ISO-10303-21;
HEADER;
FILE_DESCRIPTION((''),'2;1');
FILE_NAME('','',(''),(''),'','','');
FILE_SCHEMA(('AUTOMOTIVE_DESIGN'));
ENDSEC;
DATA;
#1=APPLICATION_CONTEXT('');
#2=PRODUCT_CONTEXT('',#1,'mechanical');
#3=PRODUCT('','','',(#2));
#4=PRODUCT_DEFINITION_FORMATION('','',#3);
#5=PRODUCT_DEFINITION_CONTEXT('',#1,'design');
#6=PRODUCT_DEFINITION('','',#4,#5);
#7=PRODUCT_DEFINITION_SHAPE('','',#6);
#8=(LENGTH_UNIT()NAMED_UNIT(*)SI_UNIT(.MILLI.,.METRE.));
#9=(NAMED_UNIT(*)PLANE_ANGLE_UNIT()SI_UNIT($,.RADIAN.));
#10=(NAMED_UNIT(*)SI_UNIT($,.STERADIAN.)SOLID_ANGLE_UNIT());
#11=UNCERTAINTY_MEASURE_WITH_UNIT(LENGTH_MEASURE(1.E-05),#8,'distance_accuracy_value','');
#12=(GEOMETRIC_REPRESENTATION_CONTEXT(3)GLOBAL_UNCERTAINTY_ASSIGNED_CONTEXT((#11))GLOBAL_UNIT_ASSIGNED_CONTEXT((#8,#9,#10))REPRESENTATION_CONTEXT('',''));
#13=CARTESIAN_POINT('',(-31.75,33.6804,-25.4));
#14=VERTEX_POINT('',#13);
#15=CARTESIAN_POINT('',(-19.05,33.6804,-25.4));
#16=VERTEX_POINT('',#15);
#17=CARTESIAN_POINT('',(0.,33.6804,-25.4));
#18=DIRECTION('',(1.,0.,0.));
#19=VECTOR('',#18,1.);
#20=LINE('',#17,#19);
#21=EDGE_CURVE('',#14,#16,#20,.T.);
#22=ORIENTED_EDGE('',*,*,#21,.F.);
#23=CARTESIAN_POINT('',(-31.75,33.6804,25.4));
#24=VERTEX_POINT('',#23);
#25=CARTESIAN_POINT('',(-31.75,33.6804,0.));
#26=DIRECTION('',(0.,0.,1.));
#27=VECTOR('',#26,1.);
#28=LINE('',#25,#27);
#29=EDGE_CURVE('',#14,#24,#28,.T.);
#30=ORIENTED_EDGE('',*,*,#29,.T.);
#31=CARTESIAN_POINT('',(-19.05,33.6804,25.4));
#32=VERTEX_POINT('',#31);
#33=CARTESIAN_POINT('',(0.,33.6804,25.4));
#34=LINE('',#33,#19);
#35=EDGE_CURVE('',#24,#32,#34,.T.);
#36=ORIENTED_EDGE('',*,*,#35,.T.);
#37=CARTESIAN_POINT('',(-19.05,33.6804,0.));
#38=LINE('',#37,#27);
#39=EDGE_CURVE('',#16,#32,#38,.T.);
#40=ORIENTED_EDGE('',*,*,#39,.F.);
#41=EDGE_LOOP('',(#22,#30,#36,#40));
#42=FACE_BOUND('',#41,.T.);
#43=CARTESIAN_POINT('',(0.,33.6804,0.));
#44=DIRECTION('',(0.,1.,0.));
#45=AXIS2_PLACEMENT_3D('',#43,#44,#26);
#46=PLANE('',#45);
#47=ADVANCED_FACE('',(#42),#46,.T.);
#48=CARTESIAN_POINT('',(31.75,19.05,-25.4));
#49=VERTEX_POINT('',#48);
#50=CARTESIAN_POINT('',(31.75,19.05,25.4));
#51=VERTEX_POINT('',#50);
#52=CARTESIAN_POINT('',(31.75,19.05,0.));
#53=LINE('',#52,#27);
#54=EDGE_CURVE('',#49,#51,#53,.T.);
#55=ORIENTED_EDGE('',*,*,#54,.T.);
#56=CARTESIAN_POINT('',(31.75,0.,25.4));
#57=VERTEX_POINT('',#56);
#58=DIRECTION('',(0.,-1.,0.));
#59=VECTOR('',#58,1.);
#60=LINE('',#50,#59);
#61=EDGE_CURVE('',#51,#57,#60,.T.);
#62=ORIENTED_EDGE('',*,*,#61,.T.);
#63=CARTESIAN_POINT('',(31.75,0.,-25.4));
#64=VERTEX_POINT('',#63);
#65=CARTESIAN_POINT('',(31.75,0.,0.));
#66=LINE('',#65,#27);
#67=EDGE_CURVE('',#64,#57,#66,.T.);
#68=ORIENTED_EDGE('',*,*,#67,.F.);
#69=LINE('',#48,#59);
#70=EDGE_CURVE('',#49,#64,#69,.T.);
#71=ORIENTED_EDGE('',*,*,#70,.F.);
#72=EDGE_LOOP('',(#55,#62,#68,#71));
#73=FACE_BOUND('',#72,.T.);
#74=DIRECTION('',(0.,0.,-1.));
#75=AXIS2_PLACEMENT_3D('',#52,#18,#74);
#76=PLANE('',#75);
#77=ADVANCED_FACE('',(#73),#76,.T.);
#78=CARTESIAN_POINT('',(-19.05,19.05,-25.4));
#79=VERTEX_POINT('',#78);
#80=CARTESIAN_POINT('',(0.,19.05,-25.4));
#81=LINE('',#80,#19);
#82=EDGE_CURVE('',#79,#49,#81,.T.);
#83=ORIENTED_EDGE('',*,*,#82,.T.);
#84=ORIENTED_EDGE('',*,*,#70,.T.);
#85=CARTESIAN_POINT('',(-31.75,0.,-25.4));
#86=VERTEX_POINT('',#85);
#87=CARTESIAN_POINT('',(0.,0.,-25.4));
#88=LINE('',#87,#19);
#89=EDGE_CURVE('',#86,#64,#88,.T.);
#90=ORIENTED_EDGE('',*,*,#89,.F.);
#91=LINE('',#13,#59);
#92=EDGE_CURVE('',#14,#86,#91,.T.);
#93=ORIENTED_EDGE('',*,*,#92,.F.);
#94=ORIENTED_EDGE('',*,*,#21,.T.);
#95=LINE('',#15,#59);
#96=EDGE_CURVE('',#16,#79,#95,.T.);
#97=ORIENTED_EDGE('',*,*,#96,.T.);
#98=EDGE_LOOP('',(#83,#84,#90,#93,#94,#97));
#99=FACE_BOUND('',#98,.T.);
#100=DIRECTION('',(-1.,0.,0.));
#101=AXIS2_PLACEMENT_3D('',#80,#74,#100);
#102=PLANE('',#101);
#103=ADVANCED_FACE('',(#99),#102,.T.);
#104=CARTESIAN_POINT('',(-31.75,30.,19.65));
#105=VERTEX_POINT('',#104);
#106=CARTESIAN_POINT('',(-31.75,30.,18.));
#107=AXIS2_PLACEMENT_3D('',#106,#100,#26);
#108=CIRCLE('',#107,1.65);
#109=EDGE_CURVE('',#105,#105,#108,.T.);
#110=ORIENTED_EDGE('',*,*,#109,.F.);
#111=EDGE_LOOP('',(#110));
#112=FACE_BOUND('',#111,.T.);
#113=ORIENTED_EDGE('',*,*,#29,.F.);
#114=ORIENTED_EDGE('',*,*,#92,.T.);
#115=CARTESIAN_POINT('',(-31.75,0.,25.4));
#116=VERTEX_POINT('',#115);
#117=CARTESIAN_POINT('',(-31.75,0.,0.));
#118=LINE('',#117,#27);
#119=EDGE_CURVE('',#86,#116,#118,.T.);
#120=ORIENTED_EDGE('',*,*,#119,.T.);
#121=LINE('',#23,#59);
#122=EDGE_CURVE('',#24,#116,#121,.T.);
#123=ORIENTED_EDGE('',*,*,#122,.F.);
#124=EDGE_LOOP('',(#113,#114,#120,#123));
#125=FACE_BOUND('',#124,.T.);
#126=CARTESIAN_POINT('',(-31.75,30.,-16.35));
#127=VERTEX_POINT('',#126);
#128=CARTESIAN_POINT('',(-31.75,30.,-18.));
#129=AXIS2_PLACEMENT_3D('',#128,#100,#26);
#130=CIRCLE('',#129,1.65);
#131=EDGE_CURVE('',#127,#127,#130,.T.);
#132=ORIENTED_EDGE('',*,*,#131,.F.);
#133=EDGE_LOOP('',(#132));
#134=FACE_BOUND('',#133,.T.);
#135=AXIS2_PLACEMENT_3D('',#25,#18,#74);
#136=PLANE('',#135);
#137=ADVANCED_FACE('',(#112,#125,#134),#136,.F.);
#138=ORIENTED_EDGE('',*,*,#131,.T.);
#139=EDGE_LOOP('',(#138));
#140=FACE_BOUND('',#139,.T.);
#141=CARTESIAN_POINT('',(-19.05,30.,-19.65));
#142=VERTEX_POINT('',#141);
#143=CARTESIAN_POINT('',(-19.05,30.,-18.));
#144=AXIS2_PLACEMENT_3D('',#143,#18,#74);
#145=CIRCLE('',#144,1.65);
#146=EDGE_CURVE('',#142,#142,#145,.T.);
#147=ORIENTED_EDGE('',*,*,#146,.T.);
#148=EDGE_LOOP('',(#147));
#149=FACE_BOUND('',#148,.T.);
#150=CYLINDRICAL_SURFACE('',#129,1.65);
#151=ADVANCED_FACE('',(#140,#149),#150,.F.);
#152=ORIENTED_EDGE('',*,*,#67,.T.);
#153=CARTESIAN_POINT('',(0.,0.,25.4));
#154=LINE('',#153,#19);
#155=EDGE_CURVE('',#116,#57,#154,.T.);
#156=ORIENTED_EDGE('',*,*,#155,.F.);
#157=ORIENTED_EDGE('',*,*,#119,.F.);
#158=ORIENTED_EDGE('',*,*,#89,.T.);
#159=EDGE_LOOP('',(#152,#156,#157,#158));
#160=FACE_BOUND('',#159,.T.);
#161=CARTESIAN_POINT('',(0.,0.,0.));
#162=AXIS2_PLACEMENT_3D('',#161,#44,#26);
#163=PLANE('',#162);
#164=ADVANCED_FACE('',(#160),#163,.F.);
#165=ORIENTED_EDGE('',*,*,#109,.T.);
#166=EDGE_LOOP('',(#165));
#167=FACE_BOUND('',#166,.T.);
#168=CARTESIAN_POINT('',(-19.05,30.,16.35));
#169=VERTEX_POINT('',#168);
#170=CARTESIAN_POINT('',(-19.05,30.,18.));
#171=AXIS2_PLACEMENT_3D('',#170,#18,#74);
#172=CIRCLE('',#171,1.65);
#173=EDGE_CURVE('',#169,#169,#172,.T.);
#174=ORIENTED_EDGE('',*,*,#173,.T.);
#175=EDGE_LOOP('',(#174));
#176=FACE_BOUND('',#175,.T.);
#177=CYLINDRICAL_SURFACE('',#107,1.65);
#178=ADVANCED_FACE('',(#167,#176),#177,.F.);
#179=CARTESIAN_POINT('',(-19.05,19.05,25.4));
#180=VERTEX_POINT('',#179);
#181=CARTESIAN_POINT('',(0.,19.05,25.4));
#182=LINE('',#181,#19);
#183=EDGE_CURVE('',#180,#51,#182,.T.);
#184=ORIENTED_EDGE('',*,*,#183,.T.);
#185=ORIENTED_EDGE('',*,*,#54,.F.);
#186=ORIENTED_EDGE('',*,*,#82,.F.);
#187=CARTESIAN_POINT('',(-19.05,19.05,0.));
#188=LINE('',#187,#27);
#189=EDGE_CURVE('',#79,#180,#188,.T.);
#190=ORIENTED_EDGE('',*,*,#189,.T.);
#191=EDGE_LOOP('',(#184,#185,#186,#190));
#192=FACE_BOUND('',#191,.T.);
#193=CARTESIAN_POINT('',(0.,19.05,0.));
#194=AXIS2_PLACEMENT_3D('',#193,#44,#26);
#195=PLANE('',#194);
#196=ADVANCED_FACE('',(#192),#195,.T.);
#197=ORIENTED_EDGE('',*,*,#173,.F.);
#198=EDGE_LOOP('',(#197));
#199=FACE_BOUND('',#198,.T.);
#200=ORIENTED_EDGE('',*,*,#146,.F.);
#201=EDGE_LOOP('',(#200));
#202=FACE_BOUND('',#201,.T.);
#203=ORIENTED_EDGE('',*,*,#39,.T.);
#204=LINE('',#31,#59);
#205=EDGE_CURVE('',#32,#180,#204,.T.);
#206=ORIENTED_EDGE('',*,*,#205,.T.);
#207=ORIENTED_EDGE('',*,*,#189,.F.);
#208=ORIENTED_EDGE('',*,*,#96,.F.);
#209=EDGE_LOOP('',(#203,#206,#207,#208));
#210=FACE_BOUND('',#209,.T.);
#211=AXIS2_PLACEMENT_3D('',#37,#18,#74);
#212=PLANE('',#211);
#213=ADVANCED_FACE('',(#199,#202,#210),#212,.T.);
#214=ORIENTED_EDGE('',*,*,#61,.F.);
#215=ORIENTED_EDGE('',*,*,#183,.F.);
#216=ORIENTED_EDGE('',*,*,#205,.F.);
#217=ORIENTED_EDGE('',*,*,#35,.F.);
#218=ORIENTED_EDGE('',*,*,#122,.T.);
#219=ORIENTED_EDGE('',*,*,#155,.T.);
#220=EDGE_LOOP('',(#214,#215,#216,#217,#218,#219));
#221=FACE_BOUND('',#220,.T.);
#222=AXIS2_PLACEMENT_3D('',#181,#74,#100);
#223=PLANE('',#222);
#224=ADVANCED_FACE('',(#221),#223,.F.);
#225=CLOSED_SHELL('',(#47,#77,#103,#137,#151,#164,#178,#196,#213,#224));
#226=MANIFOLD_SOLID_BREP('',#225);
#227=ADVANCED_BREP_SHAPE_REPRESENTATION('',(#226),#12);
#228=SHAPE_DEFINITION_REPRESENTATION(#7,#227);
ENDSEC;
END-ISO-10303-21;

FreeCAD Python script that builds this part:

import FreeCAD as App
import Part
import Sketcher
Q = App.Units.Quantity


def add_polygon(sketch, points):
    """Adds a closed chain of lines whose ends are joined by coincident constraints."""
    first, n = sketch.GeometryCount, len(points)
    for a, b in zip(points, points[1:] + points[:1]):
        sketch.addGeometry(Part.LineSegment(App.Vector(*a, 0), App.Vector(*b, 0)), False)
    for i in range(n):
        sketch.addConstraint(Sketcher.Constraint("Coincident", first + i, 2, first + (i + 1) % n, 1))

doc = App.newDocument("Part")
body = doc.addObject("PartDesign::Body", "Body")

sketch1 = doc.addObject("Sketcher::SketchObject", "Sketch")
body.addObject(sketch1)
sketch1.AttachmentSupport = (doc.XZ_Plane, [""])
sketch1.MapMode = "FlatFace"
add_polygon(sketch1, [(-19, -25), (-19, 25), (32, 25), (32, -25)])
sketch1.addConstraint([
    Sketcher.Constraint("Vertical", 0),
    Sketcher.Constraint("Horizontal", 1),
    Sketcher.Constraint("Vertical", 2),
    Sketcher.Constraint("Horizontal", 3),
    Sketcher.Constraint("Equal", 3, 0),
    Sketcher.Constraint("DistanceX", 1, 1, 1, 2, Q("2 in")),
    Sketcher.Constraint("DistanceY", -1, 1, 0, 2, Q("1 in")),
    Sketcher.Constraint("DistanceX", 0, 2, -1, 1, Q("0.75 in")),
])
pad1 = doc.addObject("PartDesign::Pad", "Pad")
body.addObject(pad1)
pad1.Profile = sketch1
pad1.Length = Q("0.75 in")
pad1.Reversed = True

sketch2 = doc.addObject("Sketcher::SketchObject", "Sketch001")
body.addObject(sketch2)
sketch2.AttachmentSupport = (doc.XZ_Plane, [""])
sketch2.MapMode = "FlatFace"
add_polygon(sketch2, [(-32, -25), (-32, 25), (-19, 25), (-19, -25)])
sketch2.addConstraint([
    Sketcher.Constraint("Vertical", 0),
    Sketcher.Constraint("Horizontal", 1),
    Sketcher.Constraint("Vertical", 2),
    Sketcher.Constraint("Horizontal", 3),
    Sketcher.Constraint("DistanceY", 0, 1, 0, 2, Q("2 in")),
    Sketcher.Constraint("DistanceX", 1, 1, 1, 2, Q("0.5 in")),
    Sketcher.Constraint("DistanceY", -1, 1, 0, 2, Q("1 in")),
    Sketcher.Constraint("DistanceX", 0, 2, -1, 1, Q("1.25 in")),
])
pad2 = doc.addObject("PartDesign::Pad", "Pad001")
body.addObject(pad2)
pad2.Profile = sketch2
pad2.Length = Q("1.326 in")
pad2.Reversed = True

sketch3 = doc.addObject("Sketcher::SketchObject", "Sketch002")
body.addObject(sketch3)
sketch3.AttachmentSupport = (doc.YZ_Plane, [""])
sketch3.MapMode = "FlatFace"
sketch3.AttachmentOffset = App.Placement(App.Vector(0, 0, -1.25 * 25.4), App.Rotation())
sketch3.addGeometry([
    Part.Circle(App.Vector(30, 18, 0), App.Vector(0, 0, 1), 1.6),
    Part.Circle(App.Vector(30, -18, 0), App.Vector(0, 0, 1), 1.6),
], False)
sketch3.addConstraint([
    Sketcher.Constraint("Equal", 0, 1),
    Sketcher.Constraint("Symmetric", 0, 3, 1, 3, -1),
    Sketcher.Constraint("Diameter", 0, Q("3.3 mm")),
    Sketcher.Constraint("DistanceX", -1, 1, 0, 3, Q("30 mm")),
    Sketcher.Constraint("DistanceY", -1, 1, 0, 3, Q("18 mm")),
])
doc.recompute()
hole = doc.addObject("PartDesign::Hole", "Hole")
body.addObject(hole)
hole.Profile = sketch3
hole.ThreadType = "None"
hole.Diameter = 3.3
hole.DepthType = "ThroughAll"
hole.Reversed = True

doc.recompute()
